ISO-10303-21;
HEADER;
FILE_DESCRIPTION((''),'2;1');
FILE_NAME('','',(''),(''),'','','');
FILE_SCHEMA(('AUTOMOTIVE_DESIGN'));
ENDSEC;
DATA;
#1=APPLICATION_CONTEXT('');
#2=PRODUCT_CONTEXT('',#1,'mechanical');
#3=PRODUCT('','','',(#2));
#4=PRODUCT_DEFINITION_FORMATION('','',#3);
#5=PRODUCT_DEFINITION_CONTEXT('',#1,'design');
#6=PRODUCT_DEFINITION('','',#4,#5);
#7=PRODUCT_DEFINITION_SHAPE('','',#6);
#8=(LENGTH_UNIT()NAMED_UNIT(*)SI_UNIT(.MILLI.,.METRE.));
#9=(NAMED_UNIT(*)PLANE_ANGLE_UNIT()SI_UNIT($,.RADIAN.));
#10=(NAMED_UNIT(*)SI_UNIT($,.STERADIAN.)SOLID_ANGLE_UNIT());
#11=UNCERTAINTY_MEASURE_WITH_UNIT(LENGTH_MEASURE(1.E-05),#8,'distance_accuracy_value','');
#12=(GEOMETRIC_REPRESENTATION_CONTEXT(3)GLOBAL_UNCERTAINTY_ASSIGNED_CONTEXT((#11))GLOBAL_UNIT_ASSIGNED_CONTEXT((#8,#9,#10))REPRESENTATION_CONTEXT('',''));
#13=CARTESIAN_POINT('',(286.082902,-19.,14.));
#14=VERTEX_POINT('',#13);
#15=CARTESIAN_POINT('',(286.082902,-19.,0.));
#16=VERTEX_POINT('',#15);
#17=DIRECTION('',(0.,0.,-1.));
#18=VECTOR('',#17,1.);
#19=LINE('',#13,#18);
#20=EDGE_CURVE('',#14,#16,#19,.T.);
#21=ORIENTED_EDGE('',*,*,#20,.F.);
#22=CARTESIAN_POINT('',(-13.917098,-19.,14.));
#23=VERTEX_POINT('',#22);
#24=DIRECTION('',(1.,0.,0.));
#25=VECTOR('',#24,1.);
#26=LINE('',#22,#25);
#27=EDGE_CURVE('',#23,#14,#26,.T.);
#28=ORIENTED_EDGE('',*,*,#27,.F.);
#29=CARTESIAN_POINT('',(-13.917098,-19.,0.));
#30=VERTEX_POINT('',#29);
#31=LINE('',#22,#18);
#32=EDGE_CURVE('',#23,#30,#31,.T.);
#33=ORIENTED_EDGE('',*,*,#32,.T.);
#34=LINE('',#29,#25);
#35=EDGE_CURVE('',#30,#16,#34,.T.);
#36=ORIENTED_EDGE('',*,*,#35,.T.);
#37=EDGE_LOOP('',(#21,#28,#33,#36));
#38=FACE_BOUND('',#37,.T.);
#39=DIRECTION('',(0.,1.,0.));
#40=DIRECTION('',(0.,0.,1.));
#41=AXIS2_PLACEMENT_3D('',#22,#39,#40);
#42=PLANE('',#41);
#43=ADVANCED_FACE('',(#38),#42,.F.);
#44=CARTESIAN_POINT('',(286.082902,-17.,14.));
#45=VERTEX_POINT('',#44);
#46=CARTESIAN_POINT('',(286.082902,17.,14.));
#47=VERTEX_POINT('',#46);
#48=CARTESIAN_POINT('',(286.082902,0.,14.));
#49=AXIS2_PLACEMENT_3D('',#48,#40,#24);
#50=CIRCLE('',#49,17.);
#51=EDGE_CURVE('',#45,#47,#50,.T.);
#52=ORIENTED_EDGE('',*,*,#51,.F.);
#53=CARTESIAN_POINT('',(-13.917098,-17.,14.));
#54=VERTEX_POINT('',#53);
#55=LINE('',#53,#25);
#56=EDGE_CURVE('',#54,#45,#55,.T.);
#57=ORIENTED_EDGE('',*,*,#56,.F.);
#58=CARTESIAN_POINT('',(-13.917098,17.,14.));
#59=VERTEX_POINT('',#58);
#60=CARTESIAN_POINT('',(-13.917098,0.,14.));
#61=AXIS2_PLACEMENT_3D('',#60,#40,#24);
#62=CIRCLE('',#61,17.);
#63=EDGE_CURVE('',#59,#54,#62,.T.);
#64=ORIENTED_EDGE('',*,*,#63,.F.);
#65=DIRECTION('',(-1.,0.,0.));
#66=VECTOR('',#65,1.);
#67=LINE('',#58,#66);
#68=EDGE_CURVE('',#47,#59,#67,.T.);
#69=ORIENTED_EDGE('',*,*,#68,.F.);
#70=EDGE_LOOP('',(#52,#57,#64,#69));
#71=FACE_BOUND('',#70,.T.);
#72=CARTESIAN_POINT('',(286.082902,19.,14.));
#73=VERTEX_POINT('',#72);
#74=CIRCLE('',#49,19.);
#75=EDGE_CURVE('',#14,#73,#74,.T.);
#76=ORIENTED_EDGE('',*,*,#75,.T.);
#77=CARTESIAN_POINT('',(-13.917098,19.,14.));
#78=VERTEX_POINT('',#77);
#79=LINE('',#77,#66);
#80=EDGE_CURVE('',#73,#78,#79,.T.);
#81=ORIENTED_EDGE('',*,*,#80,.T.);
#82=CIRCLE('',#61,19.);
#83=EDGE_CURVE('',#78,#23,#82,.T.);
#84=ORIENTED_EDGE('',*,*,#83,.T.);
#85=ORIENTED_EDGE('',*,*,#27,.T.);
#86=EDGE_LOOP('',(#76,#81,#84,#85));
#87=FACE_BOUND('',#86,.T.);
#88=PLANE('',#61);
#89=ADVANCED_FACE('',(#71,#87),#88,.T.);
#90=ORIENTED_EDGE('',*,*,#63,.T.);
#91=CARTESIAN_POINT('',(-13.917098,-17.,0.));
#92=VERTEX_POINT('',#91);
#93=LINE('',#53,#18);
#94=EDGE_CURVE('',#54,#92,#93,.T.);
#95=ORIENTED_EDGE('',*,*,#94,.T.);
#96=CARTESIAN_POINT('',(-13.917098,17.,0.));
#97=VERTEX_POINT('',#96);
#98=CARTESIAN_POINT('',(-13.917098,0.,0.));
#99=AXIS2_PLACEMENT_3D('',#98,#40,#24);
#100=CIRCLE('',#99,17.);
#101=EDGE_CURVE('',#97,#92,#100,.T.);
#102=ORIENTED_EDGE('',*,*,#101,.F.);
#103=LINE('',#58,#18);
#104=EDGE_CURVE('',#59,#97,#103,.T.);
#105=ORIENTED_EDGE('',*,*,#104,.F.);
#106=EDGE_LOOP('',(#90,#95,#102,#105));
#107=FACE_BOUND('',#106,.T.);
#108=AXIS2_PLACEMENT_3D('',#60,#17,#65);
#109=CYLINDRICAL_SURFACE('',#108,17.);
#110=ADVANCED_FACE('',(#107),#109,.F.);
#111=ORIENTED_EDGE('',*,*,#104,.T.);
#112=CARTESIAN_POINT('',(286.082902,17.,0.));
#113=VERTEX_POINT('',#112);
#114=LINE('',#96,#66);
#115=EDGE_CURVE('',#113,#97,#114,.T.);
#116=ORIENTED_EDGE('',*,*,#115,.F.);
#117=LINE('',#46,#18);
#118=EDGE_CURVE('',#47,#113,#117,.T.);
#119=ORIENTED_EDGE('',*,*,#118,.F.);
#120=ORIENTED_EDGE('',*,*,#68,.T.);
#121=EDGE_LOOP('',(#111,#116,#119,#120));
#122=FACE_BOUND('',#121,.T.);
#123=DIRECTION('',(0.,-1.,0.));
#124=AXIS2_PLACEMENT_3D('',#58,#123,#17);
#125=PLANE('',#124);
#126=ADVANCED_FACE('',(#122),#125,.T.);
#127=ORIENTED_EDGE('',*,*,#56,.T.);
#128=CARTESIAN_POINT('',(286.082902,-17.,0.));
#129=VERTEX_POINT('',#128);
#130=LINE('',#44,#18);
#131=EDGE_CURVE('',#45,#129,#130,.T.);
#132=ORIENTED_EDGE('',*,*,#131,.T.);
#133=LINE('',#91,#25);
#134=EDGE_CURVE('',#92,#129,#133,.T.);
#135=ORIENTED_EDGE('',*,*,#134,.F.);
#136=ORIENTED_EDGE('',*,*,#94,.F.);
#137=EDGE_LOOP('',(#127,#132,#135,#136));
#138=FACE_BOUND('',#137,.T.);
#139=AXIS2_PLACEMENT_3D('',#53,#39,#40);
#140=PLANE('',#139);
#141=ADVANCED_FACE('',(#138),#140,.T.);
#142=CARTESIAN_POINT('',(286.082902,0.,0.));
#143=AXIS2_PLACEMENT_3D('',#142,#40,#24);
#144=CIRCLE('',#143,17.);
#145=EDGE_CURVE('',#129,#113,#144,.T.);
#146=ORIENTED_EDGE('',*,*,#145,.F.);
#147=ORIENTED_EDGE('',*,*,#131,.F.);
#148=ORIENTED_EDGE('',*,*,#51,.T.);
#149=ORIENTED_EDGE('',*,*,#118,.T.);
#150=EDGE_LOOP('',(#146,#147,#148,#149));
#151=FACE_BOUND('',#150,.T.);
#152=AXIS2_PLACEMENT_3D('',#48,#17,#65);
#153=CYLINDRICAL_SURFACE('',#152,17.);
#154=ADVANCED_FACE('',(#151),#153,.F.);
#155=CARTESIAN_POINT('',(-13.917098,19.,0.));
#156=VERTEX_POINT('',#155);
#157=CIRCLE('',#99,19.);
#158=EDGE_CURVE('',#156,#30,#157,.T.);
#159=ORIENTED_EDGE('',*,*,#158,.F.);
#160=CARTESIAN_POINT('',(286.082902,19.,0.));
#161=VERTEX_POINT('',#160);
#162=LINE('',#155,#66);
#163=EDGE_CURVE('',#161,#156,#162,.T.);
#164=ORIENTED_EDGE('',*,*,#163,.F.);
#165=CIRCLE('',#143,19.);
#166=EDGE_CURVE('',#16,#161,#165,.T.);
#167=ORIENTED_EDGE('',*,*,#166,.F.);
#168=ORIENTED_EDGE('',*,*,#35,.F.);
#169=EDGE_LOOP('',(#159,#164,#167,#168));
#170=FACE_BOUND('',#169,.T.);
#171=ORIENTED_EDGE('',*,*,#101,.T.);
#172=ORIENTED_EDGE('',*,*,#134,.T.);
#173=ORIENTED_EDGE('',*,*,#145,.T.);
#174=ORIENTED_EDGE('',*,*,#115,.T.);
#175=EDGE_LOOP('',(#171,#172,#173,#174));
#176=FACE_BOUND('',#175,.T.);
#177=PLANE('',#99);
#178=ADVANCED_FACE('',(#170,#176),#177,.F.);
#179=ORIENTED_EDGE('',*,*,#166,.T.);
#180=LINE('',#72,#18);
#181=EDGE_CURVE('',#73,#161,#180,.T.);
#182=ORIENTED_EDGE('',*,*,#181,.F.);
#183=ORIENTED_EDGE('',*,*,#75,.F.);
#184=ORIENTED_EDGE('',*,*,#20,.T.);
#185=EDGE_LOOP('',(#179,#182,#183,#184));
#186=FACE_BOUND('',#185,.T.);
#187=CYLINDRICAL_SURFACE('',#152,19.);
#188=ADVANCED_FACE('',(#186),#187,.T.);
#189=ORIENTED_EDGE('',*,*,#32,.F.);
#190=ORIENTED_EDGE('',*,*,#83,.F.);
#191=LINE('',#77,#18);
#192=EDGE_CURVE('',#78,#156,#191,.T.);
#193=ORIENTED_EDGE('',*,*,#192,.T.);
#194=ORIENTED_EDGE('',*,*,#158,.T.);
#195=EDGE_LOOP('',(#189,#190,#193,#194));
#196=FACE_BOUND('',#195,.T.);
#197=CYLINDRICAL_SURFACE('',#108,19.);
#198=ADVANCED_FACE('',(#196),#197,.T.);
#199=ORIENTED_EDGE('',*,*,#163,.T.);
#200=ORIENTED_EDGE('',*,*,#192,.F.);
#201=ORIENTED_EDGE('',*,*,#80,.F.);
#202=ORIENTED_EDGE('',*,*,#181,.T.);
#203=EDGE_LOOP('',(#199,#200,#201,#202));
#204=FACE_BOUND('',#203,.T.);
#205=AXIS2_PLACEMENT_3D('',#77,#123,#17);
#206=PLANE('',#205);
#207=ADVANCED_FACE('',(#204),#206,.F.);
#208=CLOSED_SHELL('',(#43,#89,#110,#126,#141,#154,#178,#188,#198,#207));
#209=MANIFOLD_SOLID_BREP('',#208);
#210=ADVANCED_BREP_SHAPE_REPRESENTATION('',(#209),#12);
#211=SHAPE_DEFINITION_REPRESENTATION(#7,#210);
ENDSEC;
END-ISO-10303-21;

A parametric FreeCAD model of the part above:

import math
import FreeCAD as App
import Part
import Sketcher

V = App.Vector
Q = App.Units.Quantity

doc = App.newDocument("Part")
params = doc.addObject("Spreadsheet::Sheet", "Params")
for row, (alias, value) in enumerate([
    ("sketch1_radius", "19 mm"),
    ("sketch1_radius2", "17 mm"),
    ("sketch1_width", "300 mm"),
    ("pad1_length", "14 mm"),
], start=1):
    params.set(f"A{row}", alias)
    params.set(f"B{row}", "=" + value)
    params.setAlias(f"B{row}", alias)

body = doc.addObject("PartDesign::Body", "Body")

# Sketch on XY plane
sketch1 = body.newObject("Sketcher::SketchObject", "Sketch")
sketch1.AttachmentSupport = (doc.getObject("XY_Plane"), [""])
sketch1.MapMode = "FlatFace"
sketch1.addGeometry([
    Part.LineSegment(V(-13.917098, -19, 0), V(286.082902, -19, 0)),  # 0
    Part.ArcOfCircle(Part.Circle(V(286.082902, 0, 0), V(0, 0, 1), 19), math.radians(-90), math.radians(90)),  # 1
    Part.LineSegment(V(286.082902, 19, 0), V(-13.917098, 19, 0)),  # 2
    Part.ArcOfCircle(Part.Circle(V(-13.917098, 0, 0), V(0, 0, 1), 19), math.radians(90), math.radians(270)),  # 3
    Part.LineSegment(V(286.082902, -17, 0), V(-13.917098, -17, 0)),  # 4
    Part.ArcOfCircle(Part.Circle(V(-13.917098, 0, 0), V(0, 0, 1), 17), math.radians(90), math.radians(270)),  # 5
    Part.LineSegment(V(-13.917098, 17, 0), V(286.082902, 17, 0)),  # 6
    Part.ArcOfCircle(Part.Circle(V(286.082902, 0, 0), V(0, 0, 1), 17), math.radians(-90), math.radians(90)),  # 7
], False)
sketch1.addConstraint([
    Sketcher.Constraint("Tangent", 0, 2, 1, 1),
    Sketcher.Constraint("Tangent", 1, 2, 2, 1),
    Sketcher.Constraint("Tangent", 2, 2, 3, 1),
    Sketcher.Constraint("Tangent", 3, 2, 0, 1),
    Sketcher.Constraint("Tangent", 4, 2, 5, 2),
    Sketcher.Constraint("Tangent", 5, 1, 6, 1),
    Sketcher.Constraint("Tangent", 6, 2, 7, 2),
    Sketcher.Constraint("Tangent", 7, 1, 4, 1),
    Sketcher.Constraint("Horizontal", 0),
    Sketcher.Constraint("Horizontal", 2),
    Sketcher.Constraint("Horizontal", 4),
    Sketcher.Constraint("Horizontal", 6),
    Sketcher.Constraint("Coincident", 5, 3, 3, 3),
    Sketcher.Constraint("PointOnObject", 1, 3, -1),
    Sketcher.Constraint("Vertical", 7, 3, 0, 2),
    Sketcher.Constraint("Radius", 1, Q("19 mm")),
    Sketcher.Constraint("Radius", 5, Q("17 mm")),
    Sketcher.Constraint("DistanceX", 0, 1, 0, 2, Q("300 mm")),
    Sketcher.Constraint("DistanceX", -1, 1, 1, 3, Q("286.082902 mm")),
])
sketch1.setExpression("Constraints[15]", "Params.sketch1_radius")
sketch1.setExpression("Constraints[16]", "Params.sketch1_radius2")
sketch1.setExpression("Constraints[17]", "Params.sketch1_width")
pad1 = body.newObject("PartDesign::Pad", "Pad")
pad1.Profile = sketch1
pad1.setExpression("Length", "Params.pad1_length")

doc.recompute()
